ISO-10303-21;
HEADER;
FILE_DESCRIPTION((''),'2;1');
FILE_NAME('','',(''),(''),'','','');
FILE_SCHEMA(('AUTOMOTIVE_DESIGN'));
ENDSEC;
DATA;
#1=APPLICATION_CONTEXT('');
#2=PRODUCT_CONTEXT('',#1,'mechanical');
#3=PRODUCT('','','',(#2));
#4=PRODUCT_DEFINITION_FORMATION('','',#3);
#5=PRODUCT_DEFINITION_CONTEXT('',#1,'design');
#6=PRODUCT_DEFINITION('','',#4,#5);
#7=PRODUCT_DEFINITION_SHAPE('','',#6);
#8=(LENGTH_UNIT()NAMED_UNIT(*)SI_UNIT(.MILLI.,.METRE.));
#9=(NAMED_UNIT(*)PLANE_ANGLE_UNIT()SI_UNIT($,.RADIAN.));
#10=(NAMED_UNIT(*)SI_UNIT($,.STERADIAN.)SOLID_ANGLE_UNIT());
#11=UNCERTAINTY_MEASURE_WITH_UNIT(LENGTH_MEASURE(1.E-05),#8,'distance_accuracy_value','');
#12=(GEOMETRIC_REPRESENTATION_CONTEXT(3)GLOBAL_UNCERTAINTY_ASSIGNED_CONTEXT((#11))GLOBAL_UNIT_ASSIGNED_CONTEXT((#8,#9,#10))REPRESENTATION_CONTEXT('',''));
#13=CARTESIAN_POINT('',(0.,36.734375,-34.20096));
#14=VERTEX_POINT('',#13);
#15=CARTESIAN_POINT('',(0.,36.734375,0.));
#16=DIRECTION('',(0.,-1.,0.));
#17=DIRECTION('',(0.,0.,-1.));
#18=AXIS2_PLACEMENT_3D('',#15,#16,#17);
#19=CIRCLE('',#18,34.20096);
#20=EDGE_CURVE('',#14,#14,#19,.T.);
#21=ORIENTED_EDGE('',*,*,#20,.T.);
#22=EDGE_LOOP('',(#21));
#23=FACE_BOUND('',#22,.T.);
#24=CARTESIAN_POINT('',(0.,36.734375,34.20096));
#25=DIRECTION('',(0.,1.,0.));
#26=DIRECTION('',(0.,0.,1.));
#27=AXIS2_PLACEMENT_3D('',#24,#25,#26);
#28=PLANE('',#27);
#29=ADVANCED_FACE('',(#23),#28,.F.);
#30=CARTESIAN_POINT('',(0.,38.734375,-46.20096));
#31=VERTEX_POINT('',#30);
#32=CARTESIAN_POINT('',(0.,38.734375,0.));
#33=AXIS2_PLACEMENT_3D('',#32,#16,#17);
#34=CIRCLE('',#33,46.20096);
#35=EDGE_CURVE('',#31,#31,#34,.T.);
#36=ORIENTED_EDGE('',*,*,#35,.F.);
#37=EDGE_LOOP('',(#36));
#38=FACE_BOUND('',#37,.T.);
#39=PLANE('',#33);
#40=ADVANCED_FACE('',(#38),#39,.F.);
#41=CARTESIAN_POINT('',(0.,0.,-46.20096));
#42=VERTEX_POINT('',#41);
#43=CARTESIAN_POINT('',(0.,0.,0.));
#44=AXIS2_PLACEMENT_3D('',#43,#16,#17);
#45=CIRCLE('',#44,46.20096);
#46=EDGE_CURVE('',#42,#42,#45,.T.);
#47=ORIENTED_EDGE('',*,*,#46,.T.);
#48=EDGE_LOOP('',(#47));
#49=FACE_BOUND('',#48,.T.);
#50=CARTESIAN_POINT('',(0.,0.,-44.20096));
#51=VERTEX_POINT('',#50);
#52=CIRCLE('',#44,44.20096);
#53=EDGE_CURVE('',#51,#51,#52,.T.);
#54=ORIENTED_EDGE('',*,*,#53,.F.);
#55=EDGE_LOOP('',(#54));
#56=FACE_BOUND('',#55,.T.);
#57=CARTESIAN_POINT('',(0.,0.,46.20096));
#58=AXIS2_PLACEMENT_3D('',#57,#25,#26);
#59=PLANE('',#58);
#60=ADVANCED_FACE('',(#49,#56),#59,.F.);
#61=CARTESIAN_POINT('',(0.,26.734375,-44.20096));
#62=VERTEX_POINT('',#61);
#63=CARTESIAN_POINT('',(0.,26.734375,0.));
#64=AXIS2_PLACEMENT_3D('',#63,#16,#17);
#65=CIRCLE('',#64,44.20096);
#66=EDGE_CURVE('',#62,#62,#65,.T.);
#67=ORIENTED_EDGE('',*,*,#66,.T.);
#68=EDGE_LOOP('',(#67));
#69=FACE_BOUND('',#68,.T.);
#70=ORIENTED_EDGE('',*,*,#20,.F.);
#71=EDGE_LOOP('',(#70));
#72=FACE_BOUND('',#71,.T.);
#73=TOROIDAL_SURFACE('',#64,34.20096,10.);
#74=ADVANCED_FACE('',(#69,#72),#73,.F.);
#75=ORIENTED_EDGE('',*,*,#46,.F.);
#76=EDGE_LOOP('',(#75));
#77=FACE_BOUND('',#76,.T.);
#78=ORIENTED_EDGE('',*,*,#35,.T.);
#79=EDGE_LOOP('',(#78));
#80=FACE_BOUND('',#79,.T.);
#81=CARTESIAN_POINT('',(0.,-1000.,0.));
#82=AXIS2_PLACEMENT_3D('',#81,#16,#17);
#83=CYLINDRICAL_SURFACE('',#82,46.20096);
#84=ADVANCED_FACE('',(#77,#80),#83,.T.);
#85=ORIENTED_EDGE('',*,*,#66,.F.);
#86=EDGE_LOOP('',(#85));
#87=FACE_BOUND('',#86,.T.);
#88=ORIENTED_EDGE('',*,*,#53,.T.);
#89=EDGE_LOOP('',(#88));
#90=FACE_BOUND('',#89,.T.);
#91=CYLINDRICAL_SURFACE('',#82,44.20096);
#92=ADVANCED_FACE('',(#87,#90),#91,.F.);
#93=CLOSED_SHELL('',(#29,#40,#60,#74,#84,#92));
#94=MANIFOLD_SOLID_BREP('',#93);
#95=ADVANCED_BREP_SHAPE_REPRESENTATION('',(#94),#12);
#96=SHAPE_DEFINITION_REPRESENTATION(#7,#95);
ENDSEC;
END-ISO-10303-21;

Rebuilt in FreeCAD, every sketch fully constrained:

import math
import FreeCAD as App
import Part
import Sketcher
from FreeCAD import Vector

doc = App.newDocument("Part")
body = doc.addObject("PartDesign::Body", "Body")

# Sketch on YZ plane
sketch1 = body.newObject("Sketcher::SketchObject", "Sketch")
sketch1.AttachmentSupport = (doc.getObject("YZ_Plane"), [""])
sketch1.MapMode = "FlatFace"
sketch1.addGeometry(Part.LineSegment(Vector(0, 44.2, 0), Vector(26.7, 44.2, 0)), False)
sketch1.addGeometry(Part.ArcOfCircle(Part.Circle(Vector(26.7, 34.2, 0), Vector(0, 0, 1), 10), math.radians(0), math.radians(90)), False)
sketch1.addGeometry(Part.LineSegment(Vector(36.7, 34.2, 0), Vector(36.7, 0, 0)), False)
sketch1.addGeometry(Part.LineSegment(Vector(36.7, 0, 0), Vector(38.7, 0, 0)), False)
sketch1.addGeometry(Part.LineSegment(Vector(38.7, 0, 0), Vector(38.7, 46.2, 0)), False)
sketch1.addGeometry(Part.LineSegment(Vector(38.7, 46.2, 0), Vector(0, 46.2, 0)), False)
sketch1.addGeometry(Part.LineSegment(Vector(0, 46.2, 0), Vector(0, 44.2, 0)), False)
sketch1.addConstraint(Sketcher.Constraint("Tangent", 0, 2, 1, 2))
sketch1.addConstraint(Sketcher.Constraint("Tangent", 1, 1, 2, 1))
sketch1.addConstraint(Sketcher.Constraint("Coincident", 2, 2, 3, 1))
sketch1.addConstraint(Sketcher.Constraint("Coincident", 3, 2, 4, 1))
sketch1.addConstraint(Sketcher.Constraint("Coincident", 4, 2, 5, 1))
sketch1.addConstraint(Sketcher.Constraint("Coincident", 5, 2, 6, 1))
sketch1.addConstraint(Sketcher.Constraint("Coincident", 6, 2, 0, 1))
sketch1.addConstraint(Sketcher.Constraint("Horizontal", 0))
sketch1.addConstraint(Sketcher.Constraint("Vertical", 2))
sketch1.addConstraint(Sketcher.Constraint("Horizontal", 3))
sketch1.addConstraint(Sketcher.Constraint("Vertical", 4))
sketch1.addConstraint(Sketcher.Constraint("Horizontal", 5))
sketch1.addConstraint(Sketcher.Constraint("Vertical", 6))
sketch1.addConstraint(Sketcher.Constraint("PointOnObject", 2, 2, -1))
sketch1.addConstraint(Sketcher.Constraint("PointOnObject", 5, 2, -2))
sketch1.addConstraint(Sketcher.Constraint("Equal", 3, 6))
sketch1.addConstraint(Sketcher.Constraint("Radius", 1, 10.0))
sketch1.addConstraint(Sketcher.Constraint("DistanceX", 3, 1, 3, 2, 2.0))
sketch1.addConstraint(Sketcher.Constraint("DistanceY", 2, 2, 2, 1, 34.20096))
sketch1.addConstraint(Sketcher.Constraint("DistanceX", 0, 1, 0, 2, 26.734375))
revolution = body.newObject("PartDesign::Revolution", "Revolution")
revolution.Profile = sketch1
revolution.ReferenceAxis = (sketch1, ["H_Axis"])
revolution.Angle = 360

doc.recompute()
